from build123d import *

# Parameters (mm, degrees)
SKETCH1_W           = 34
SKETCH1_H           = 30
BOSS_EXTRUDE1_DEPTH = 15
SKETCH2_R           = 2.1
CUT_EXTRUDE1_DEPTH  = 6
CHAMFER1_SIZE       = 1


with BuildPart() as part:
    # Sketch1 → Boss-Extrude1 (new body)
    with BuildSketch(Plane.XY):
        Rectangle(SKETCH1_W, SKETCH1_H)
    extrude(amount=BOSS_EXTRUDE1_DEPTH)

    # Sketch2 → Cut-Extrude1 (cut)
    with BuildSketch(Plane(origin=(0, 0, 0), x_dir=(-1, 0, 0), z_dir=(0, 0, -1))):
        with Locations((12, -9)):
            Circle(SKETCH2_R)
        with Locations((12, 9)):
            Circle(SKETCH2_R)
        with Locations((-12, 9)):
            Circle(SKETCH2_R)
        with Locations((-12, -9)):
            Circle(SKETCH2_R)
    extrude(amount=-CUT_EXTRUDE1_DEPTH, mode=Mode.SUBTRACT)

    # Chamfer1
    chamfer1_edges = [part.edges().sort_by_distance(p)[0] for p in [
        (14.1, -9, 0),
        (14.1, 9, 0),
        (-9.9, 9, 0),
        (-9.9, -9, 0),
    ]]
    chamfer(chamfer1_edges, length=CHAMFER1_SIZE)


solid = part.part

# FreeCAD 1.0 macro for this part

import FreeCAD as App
import Part
import Sketcher
Q = App.Units.Quantity


def edges_at(feature, points):
    """Names of the edges that pass closest to the given points."""
    edges = feature.Shape.Edges
    near = lambda p: min(range(len(edges)), key=lambda i: edges[i].distToShape(Part.Vertex(*p))[0])
    return sorted({f"Edge{near(p) + 1}" for p in points})


def add_polygon(sketch, points):
    """Adds a closed chain of lines whose ends are joined by coincident constraints."""
    first, n = sketch.GeometryCount, len(points)
    for a, b in zip(points, points[1:] + points[:1]):
        sketch.addGeometry(Part.LineSegment(App.Vector(*a, 0), App.Vector(*b, 0)), False)
    for i in range(n):
        sketch.addConstraint(Sketcher.Constraint("Coincident", first + i, 2, first + (i + 1) % n, 1))

doc = App.newDocument("Part")
body = doc.addObject("PartDesign::Body", "Body")

# Sketch on XY plane
sketch1 = body.newObject("Sketcher::SketchObject", "Sketch")
sketch1.AttachmentSupport = (doc.getObject("XY_Plane"), [""])
sketch1.MapMode = "FlatFace"
add_polygon(sketch1, [(-17, 15), (-17, -15), (17, -15), (17, 15)])  # lines 0-3
sketch1.addConstraint([
    Sketcher.Constraint("Vertical", 0),
    Sketcher.Constraint("Horizontal", 1),
    Sketcher.Constraint("Vertical", 2),
    Sketcher.Constraint("Horizontal", 3),
    Sketcher.Constraint("Symmetric", 0, 2, 2, 2, -1, 1),
    Sketcher.Constraint("DistanceX", 1, 1, 1, 2, Q("34 mm")),
    Sketcher.Constraint("DistanceY", 0, 2, 0, 1, Q("30 mm")),
])
pad1 = body.newObject("PartDesign::Pad", "Pad")
pad1.Profile = sketch1
pad1.Length = 15

# Sketch on XY plane
sketch2 = body.newObject("Sketcher::SketchObject", "Sketch001")
sketch2.AttachmentSupport = (doc.getObject("XY_Plane"), [""])
sketch2.MapMode = "FlatFace"
sketch2.addGeometry([
    Part.Circle(App.Vector(-12, -9, 0), App.Vector(0, 0, 1), 2.1),
    Part.Circle(App.Vector(-12, 9, 0), App.Vector(0, 0, 1), 2.1),
    Part.Circle(App.Vector(12, 9, 0), App.Vector(0, 0, 1), 2.1),
    Part.Circle(App.Vector(12, -9, 0), App.Vector(0, 0, 1), 2.1),
], False)
sketch2.addConstraint([
    Sketcher.Constraint("Equal", 0, 1),
    Sketcher.Constraint("Equal", 1, 2),
    Sketcher.Constraint("Equal", 2, 3),
    Sketcher.Constraint("Symmetric", 0, 3, 2, 3, -1, 1),
    Sketcher.Constraint("Symmetric", 1, 3, 3, 3, -1, 1),
    Sketcher.Constraint("Symmetric", 1, 3, 2, 3, -2),
    Sketcher.Constraint("Diameter", 0, Q("4.2 mm")),
    Sketcher.Constraint("DistanceX", 0, 3, -1, 1, Q("12 mm")),
    Sketcher.Constraint("DistanceY", 0, 3, -1, 1, Q("9 mm")),
])
pocket1 = body.newObject("PartDesign::Pocket", "Pocket")
pocket1.Profile = sketch2
pocket1.Length = 6
pocket1.Reversed = True
doc.recompute()

chamfer = body.newObject("PartDesign::Chamfer", "Chamfer")
chamfer.Base = (pocket1, edges_at(pocket1, [
    (14.1, -9, 0),
    (14.1, 9, 0),
    (-9.9, 9, 0),
    (-9.9, -9, 0),
]))
chamfer.Size = 1

doc.recompute()
